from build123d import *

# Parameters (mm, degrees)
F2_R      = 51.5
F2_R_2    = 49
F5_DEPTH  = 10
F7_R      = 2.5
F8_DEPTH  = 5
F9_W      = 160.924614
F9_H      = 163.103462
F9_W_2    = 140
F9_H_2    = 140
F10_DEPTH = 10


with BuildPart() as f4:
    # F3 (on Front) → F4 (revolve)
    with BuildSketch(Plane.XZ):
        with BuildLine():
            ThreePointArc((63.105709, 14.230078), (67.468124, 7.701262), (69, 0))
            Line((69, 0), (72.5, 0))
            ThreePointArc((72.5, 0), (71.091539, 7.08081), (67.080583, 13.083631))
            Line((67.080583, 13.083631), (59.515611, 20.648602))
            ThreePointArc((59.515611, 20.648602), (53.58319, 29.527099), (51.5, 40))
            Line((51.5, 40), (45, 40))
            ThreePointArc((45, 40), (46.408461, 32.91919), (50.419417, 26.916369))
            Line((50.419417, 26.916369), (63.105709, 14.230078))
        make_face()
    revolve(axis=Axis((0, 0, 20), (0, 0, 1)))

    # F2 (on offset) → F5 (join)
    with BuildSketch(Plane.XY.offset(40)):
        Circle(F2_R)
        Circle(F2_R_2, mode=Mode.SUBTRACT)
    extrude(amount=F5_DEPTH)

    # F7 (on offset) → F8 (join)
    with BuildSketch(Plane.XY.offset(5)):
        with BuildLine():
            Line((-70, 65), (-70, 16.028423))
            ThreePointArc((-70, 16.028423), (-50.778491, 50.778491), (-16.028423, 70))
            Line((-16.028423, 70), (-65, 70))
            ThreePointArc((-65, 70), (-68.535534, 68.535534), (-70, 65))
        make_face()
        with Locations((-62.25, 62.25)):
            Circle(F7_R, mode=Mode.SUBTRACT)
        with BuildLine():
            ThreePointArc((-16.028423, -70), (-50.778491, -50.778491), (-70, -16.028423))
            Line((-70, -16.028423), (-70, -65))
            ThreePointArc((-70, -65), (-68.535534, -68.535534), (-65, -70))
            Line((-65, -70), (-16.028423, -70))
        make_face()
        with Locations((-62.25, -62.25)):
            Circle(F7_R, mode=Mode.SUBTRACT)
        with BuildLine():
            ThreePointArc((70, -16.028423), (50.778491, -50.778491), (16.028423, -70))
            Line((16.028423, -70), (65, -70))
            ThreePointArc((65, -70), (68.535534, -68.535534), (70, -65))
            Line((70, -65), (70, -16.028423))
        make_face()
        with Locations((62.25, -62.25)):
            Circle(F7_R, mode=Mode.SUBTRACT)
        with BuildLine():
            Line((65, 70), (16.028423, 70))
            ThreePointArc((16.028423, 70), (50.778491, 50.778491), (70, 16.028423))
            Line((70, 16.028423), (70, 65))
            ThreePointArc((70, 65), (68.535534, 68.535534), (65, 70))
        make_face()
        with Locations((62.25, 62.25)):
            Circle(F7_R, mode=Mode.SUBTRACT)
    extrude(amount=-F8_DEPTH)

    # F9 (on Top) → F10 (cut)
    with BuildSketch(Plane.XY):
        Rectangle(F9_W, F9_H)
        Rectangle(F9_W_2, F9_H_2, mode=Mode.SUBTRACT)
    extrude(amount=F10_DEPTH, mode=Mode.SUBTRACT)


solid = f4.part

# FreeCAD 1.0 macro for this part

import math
import FreeCAD as App
import Part
import Sketcher
from FreeCAD import Vector
Q = App.Units.Quantity


def add_polygon(sketch, points):
    """Adds a closed chain of lines whose ends are joined by coincident constraints."""
    first, n = sketch.GeometryCount, len(points)
    for a, b in zip(points, points[1:] + points[:1]):
        sketch.addGeometry(Part.LineSegment(App.Vector(*a, 0), App.Vector(*b, 0)), False)
    for i in range(n):
        sketch.addConstraint(Sketcher.Constraint("Coincident", first + i, 2, first + (i + 1) % n, 1))

doc = App.newDocument("Part")
body = doc.addObject("PartDesign::Body", "Body")

# Sketch on XZ plane
sketch1 = body.newObject("Sketcher::SketchObject", "Sketch")
sketch1.AttachmentSupport = (doc.getObject("XZ_Plane"), [""])
sketch1.MapMode = "FlatFace"
sketch1.addGeometry(Part.ArcOfCircle(Part.Circle(Vector(48.9, 0, 0), Vector(0, 0, 1), 20.1), math.radians(0), math.radians(45)), False)
sketch1.addGeometry(Part.LineSegment(Vector(69, 0, 0), Vector(72.5, 0, 0)), False)
sketch1.addGeometry(Part.ArcOfCircle(Part.Circle(Vector(54, 0, 0), Vector(0, 0, 1), 18.5), math.radians(0), math.radians(45)), False)
sketch1.addGeometry(Part.LineSegment(Vector(67.1, 13.1, 0), Vector(59.5, 20.6, 0)), False)
sketch1.addGeometry(Part.ArcOfCircle(Part.Circle(Vector(78.9, 40, 0), Vector(0, 0, 1), 27.4), math.radians(-180), math.radians(-135)), False)
sketch1.addGeometry(Part.LineSegment(Vector(51.5, 40, 0), Vector(45, 40, 0)), False)
sketch1.addGeometry(Part.ArcOfCircle(Part.Circle(Vector(63.5, 40, 0), Vector(0, 0, 1), 18.5), math.radians(-180), math.radians(-135)), False)
sketch1.addGeometry(Part.LineSegment(Vector(50.4, 26.9, 0), Vector(63.1, 14.2, 0)), False)
sketch1.addConstraint(Sketcher.Constraint("Coincident", 0, 1, 1, 1))
sketch1.addConstraint(Sketcher.Constraint("Coincident", 1, 2, 2, 1))
sketch1.addConstraint(Sketcher.Constraint("Tangent", 2, 2, 3, 1))
sketch1.addConstraint(Sketcher.Constraint("Tangent", 3, 2, 4, 2))
sketch1.addConstraint(Sketcher.Constraint("Coincident", 4, 1, 5, 1))
sketch1.addConstraint(Sketcher.Constraint("Coincident", 5, 2, 6, 1))
sketch1.addConstraint(Sketcher.Constraint("Tangent", 6, 2, 7, 1))
sketch1.addConstraint(Sketcher.Constraint("Tangent", 7, 2, 0, 2))
sketch1.addConstraint(Sketcher.Constraint("Horizontal", 1))
sketch1.addConstraint(Sketcher.Constraint("Horizontal", 5))
sketch1.addConstraint(Sketcher.Constraint("Equal", 2, 6))
sketch1.addConstraint(Sketcher.Constraint("PointOnObject", 0, 3, -1))
sketch1.addConstraint(Sketcher.Constraint("PointOnObject", 2, 3, -1))
sketch1.addConstraint(Sketcher.Constraint("PointOnObject", 0, 1, -1))
sketch1.addConstraint(Sketcher.Constraint("Parallel", 3, 7))
sketch1.addConstraint(Sketcher.Constraint("Horizontal", 4, 3, 6, 3))
sketch1.addConstraint(Sketcher.Constraint("Horizontal", 6, 3, 4, 1))
sketch1.addConstraint(Sketcher.Constraint("Angle", 3, Q("135.000004 deg")))
sketch1.addConstraint(Sketcher.Constraint("DistanceX", 1, 1, 1, 2, 3.5))
sketch1.addConstraint(Sketcher.Constraint("DistanceX", 5, 2, 5, 1, 6.5))
sketch1.addConstraint(Sketcher.Constraint("DistanceY", -1, 1, 6, 3, 40.000002))
sketch1.addConstraint(Sketcher.Constraint("DistanceX", -1, 1, 0, 1, 69.0))
sketch1.addConstraint(Sketcher.Constraint("DistanceX", -1, 1, 5, 2, 45.0))
sketch1.addConstraint(Sketcher.Constraint("Radius", 0, 20.12437))
revolution = body.newObject("PartDesign::Revolution", "Revolution")
revolution.Profile = sketch1
revolution.ReferenceAxis = (sketch1, ["V_Axis"])
revolution.Angle = 360

# Sketch on XY plane
sketch2 = body.newObject("Sketcher::SketchObject", "Sketch001")
sketch2.AttachmentSupport = (doc.getObject("XY_Plane"), [""])
sketch2.MapMode = "FlatFace"
sketch2.AttachmentOffset = App.Placement(Vector(0, 0, 40), App.Rotation())
sketch2.addGeometry(Part.Circle(Vector(0, 0, 0), Vector(0, 0, 1), 52), False)
sketch2.addGeometry(Part.Circle(Vector(0, 0, 0), Vector(0, 0, 1), 49), False)
sketch2.addConstraint(Sketcher.Constraint("Coincident", 0, 3, -1, 1))
sketch2.addConstraint(Sketcher.Constraint("Coincident", 1, 3, -1, 1))
sketch2.addConstraint(Sketcher.Constraint("Diameter", 0, 103.0))
sketch2.addConstraint(Sketcher.Constraint("Diameter", 1, 98.0))
pad1 = body.newObject("PartDesign::Pad", "Pad")
pad1.Profile = sketch2
pad1.Length = 10

# Sketch on XY plane
sketch3 = body.newObject("Sketcher::SketchObject", "Sketch002")
sketch3.AttachmentSupport = (doc.getObject("XY_Plane"), [""])
sketch3.MapMode = "FlatFace"
sketch3.AttachmentOffset = App.Placement(Vector(0, 0, 5), App.Rotation())
sketch3.addGeometry(Part.LineSegment(Vector(-70, 65, 0), Vector(-70, 16, 0)), False)
sketch3.addGeometry(Part.ArcOfCircle(Part.Circle(Vector(0, 0, 0), Vector(0, 0, 1), 71.8), math.radians(103), math.radians(167)), False)
sketch3.addGeometry(Part.LineSegment(Vector(-16, 70, 0), Vector(-65, 70, 0)), False)
sketch3.addGeometry(Part.ArcOfCircle(Part.Circle(Vector(-65, 65, 0), Vector(0, 0, 1), 5), math.radians(90), math.radians(180)), False)
sketch3.addGeometry(Part.Circle(Vector(-62.2, 62.2, 0), Vector(0, 0, 1), 2.5), False)
sketch3.addGeometry(Part.ArcOfCircle(Part.Circle(Vector(0, 0, 0), Vector(0, 0, 1), 71.8), math.radians(-167), math.radians(-103)), False)
sketch3.addGeometry(Part.LineSegment(Vector(-70, -16, 0), Vector(-70, -65, 0)), False)
sketch3.addGeometry(Part.ArcOfCircle(Part.Circle(Vector(-65, -65, 0), Vector(0, 0, 1), 5), math.radians(180), math.radians(270)), False)
sketch3.addGeometry(Part.LineSegment(Vector(-65, -70, 0), Vector(-16, -70, 0)), False)
sketch3.addGeometry(Part.Circle(Vector(-62.2, -62.2, 0), Vector(0, 0, 1), 2.5), False)
sketch3.addGeometry(Part.ArcOfCircle(Part.Circle(Vector(0, 0, 0), Vector(0, 0, 1), 71.8), math.radians(-77), math.radians(-13)), False)
sketch3.addGeometry(Part.LineSegment(Vector(16, -70, 0), Vector(65, -70, 0)), False)
sketch3.addGeometry(Part.ArcOfCircle(Part.Circle(Vector(65, -65, 0), Vector(0, 0, 1), 5), math.radians(-90), math.radians(0)), False)
sketch3.addGeometry(Part.LineSegment(Vector(70, -65, 0), Vector(70, -16, 0)), False)
sketch3.addGeometry(Part.Circle(Vector(62.2, -62.2, 0), Vector(0, 0, 1), 2.5), False)
sketch3.addGeometry(Part.LineSegment(Vector(65, 70, 0), Vector(16, 70, 0)), False)
sketch3.addGeometry(Part.ArcOfCircle(Part.Circle(Vector(0, 0, 0), Vector(0, 0, 1), 71.8), math.radians(13), math.radians(77)), False)
sketch3.addGeometry(Part.LineSegment(Vector(70, 16, 0), Vector(70, 65, 0)), False)
sketch3.addGeometry(Part.ArcOfCircle(Part.Circle(Vector(65, 65, 0), Vector(0, 0, 1), 5), math.radians(0), math.radians(90)), False)
sketch3.addGeometry(Part.Circle(Vector(62.2, 62.2, 0), Vector(0, 0, 1), 2.5), False)
sketch3.addConstraint(Sketcher.Constraint("Coincident", 0, 2, 1, 2))
sketch3.addConstraint(Sketcher.Constraint("Coincident", 1, 1, 2, 1))
sketch3.addConstraint(Sketcher.Constraint("Tangent", 2, 2, 3, 1))
sketch3.addConstraint(Sketcher.Constraint("Tangent", 3, 2, 0, 1))
sketch3.addConstraint(Sketcher.Constraint("Coincident", 5, 1, 6, 1))
sketch3.addConstraint(Sketcher.Constraint("Tangent", 6, 2, 7, 1))
sketch3.addConstraint(Sketcher.Constraint("Tangent", 7, 2, 8, 1))
sketch3.addConstraint(Sketcher.Constraint("Coincident", 8, 2, 5, 2))
sketch3.addConstraint(Sketcher.Constraint("Coincident", 10, 1, 11, 1))
sketch3.addConstraint(Sketcher.Constraint("Tangent", 11, 2, 12, 1))
sketch3.addConstraint(Sketcher.Constraint("Tangent", 12, 2, 13, 1))
sketch3.addConstraint(Sketcher.Constraint("Coincident", 13, 2, 10, 2))
sketch3.addConstraint(Sketcher.Constraint("Coincident", 15, 2, 16, 2))
sketch3.addConstraint(Sketcher.Constraint("Coincident", 16, 1, 17, 1))
sketch3.addConstraint(Sketcher.Constraint("Tangent", 17, 2, 18, 1))
sketch3.addConstraint(Sketcher.Constraint("Tangent", 18, 2, 15, 1))
sketch3.addConstraint(Sketcher.Constraint("Vertical", 0))
sketch3.addConstraint(Sketcher.Constraint("Horizontal", 2))
sketch3.addConstraint(Sketcher.Constraint("Vertical", 6))
sketch3.addConstraint(Sketcher.Constraint("Horizontal", 8))
sketch3.addConstraint(Sketcher.Constraint("Horizontal", 11))
sketch3.addConstraint(Sketcher.Constraint("Vertical", 13))
sketch3.addConstraint(Sketcher.Constraint("Horizontal", 15))
sketch3.addConstraint(Sketcher.Constraint("Vertical", 17))
sketch3.addConstraint(Sketcher.Constraint("Coincident", 1, 3, -1, 1))
sketch3.addConstraint(Sketcher.Constraint("Coincident", 5, 3, -1, 1))
sketch3.addConstraint(Sketcher.Constraint("Coincident", 10, 3, -1, 1))
sketch3.addConstraint(Sketcher.Constraint("Coincident", 16, 3, -1, 1))
sketch3.addConstraint(Sketcher.Constraint("Equal", 1, 5))
sketch3.addConstraint(Sketcher.Constraint("Equal", 3, 7))
sketch3.addConstraint(Sketcher.Constraint("Equal", 4, 9))
sketch3.addConstraint(Sketcher.Constraint("Equal", 5, 10))
sketch3.addConstraint(Sketcher.Constraint("Equal", 7, 12))
sketch3.addConstraint(Sketcher.Constraint("Equal", 9, 14))
sketch3.addConstraint(Sketcher.Constraint("Equal", 10, 16))
sketch3.addConstraint(Sketcher.Constraint("Equal", 12, 18))
sketch3.addConstraint(Sketcher.Constraint("Equal", 14, 19))
sketch3.addConstraint(Sketcher.Constraint("Symmetric", 3, 3, 12, 3, -1, 1))
sketch3.addConstraint(Sketcher.Constraint("Symmetric", 4, 3, 14, 3, -1, 1))
sketch3.addConstraint(Sketcher.Constraint("Symmetric", 7, 3, 18, 3, -1, 1))
sketch3.addConstraint(Sketcher.Constraint("Symmetric", 9, 3, 19, 3, -1, 1))
sketch3.addConstraint(Sketcher.Constraint("Symmetric", 7, 3, 12, 3, -2))
sketch3.addConstraint(Sketcher.Constraint("Symmetric", 9, 3, 14, 3, -2))
sketch3.addConstraint(Sketcher.Constraint("Equal", 15, 0))
sketch3.addConstraint(Sketcher.Constraint("Diameter", 4, 5.0))
sketch3.addConstraint(Sketcher.Constraint("Radius", 3, 5.0))
sketch3.addConstraint(Sketcher.Constraint("DistanceX", 3, 3, -1, 1, 65.0))
sketch3.addConstraint(Sketcher.Constraint("DistanceY", 9, 3, 4, 3, 124.5))
sketch3.addConstraint(Sketcher.Constraint("DistanceX", 9, 3, 14, 3, 124.5))
sketch3.addConstraint(Sketcher.Constraint("Radius", 1, 71.811633))
pad2 = body.newObject("PartDesign::Pad", "Pad001")
pad2.Profile = sketch3
pad2.Length = 5
pad2.Reversed = True

# Sketch on XY plane
sketch4 = body.newObject("Sketcher::SketchObject", "Sketch003")
sketch4.AttachmentSupport = (doc.getObject("XY_Plane"), [""])
sketch4.MapMode = "FlatFace"
add_polygon(sketch4, [(-80, 82), (-80, -82), (80, -82), (80, 82)])  # lines 0-3
add_polygon(sketch4, [(70, -70), (-70, -70), (-70, 70), (70, 70)])  # lines 4-7
sketch4.addConstraint(Sketcher.Constraint("Vertical", 0))
sketch4.addConstraint(Sketcher.Constraint("Horizontal", 1))
sketch4.addConstraint(Sketcher.Constraint("Vertical", 2))
sketch4.addConstraint(Sketcher.Constraint("Horizontal", 3))
sketch4.addConstraint(Sketcher.Constraint("Horizontal", 4))
sketch4.addConstraint(Sketcher.Constraint("Vertical", 5))
sketch4.addConstraint(Sketcher.Constraint("Horizontal", 6))
sketch4.addConstraint(Sketcher.Constraint("Vertical", 7))
sketch4.addConstraint(Sketcher.Constraint("Symmetric", 0, 2, 2, 2, -1, 1))
sketch4.addConstraint(Sketcher.Constraint("Symmetric", 4, 2, 6, 2, -1, 1))
sketch4.addConstraint(Sketcher.Constraint("Equal", 6, 5))
sketch4.addConstraint(Sketcher.Constraint("DistanceX", 4, 2, 4, 1, 140.0))
sketch4.addConstraint(Sketcher.Constraint("DistanceY", 0, 2, 0, 1, 163.103462))
sketch4.addConstraint(Sketcher.Constraint("DistanceX", 1, 1, 1, 2, 160.924614))
pocket1 = body.newObject("PartDesign::Pocket", "Pocket")
pocket1.Profile = sketch4
pocket1.Length = 10
pocket1.Reversed = True

doc.recompute()
